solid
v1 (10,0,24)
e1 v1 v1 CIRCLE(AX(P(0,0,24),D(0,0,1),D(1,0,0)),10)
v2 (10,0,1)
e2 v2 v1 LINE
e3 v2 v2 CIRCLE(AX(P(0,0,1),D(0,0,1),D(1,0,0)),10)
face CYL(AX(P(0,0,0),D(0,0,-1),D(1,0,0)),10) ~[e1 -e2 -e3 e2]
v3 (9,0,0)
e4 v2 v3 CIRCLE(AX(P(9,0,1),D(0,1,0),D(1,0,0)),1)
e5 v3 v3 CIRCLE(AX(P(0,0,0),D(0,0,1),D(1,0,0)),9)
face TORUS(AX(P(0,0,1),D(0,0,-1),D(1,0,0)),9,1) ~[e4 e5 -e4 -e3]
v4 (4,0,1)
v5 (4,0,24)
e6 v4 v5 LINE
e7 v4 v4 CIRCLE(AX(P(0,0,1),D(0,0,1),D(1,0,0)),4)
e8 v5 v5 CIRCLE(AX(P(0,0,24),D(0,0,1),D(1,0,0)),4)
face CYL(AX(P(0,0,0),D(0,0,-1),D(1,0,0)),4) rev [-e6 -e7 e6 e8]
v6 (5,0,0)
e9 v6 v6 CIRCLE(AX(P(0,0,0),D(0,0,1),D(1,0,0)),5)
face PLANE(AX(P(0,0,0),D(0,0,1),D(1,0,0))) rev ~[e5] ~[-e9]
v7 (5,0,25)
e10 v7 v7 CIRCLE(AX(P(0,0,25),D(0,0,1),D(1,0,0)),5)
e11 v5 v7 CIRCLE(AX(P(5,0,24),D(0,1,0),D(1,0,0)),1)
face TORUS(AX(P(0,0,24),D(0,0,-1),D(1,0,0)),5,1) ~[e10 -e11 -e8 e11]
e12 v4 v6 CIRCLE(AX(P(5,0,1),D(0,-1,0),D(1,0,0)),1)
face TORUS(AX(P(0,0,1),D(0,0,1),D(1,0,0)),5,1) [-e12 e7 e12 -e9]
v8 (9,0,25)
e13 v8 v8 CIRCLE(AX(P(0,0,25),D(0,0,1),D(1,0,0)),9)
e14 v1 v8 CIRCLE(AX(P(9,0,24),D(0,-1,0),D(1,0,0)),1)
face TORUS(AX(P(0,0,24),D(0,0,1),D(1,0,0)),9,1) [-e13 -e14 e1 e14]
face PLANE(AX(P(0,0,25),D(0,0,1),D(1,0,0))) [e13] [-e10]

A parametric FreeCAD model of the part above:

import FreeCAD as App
import Part
import Sketcher
Q = App.Units.Quantity

doc = App.newDocument("Part")
body = doc.addObject("PartDesign::Body", "Body")

# Sketch on XY plane
sketch1 = body.newObject("Sketcher::SketchObject", "Sketch")
sketch1.AttachmentSupport = (doc.getObject("XY_Plane"), [""])
sketch1.MapMode = "FlatFace"
sketch1.addGeometry([
    Part.Circle(App.Vector(0, 0, 0), App.Vector(0, 0, 1), 10),
    Part.Circle(App.Vector(0, 0, 0), App.Vector(0, 0, 1), 4),
], False)
sketch1.addConstraint([
    Sketcher.Constraint("Coincident", 0, 3, -1, 1),
    Sketcher.Constraint("Coincident", 1, 3, -1, 1),
    Sketcher.Constraint("Diameter", 0, Q("20 mm")),
    Sketcher.Constraint("Diameter", 1, Q("8 mm")),
])
pad1 = body.newObject("PartDesign::Pad", "Pad")
pad1.Profile = sketch1
pad1.Length = 25
doc.recompute()

fillet = body.newObject("PartDesign::Fillet", "Fillet")
fillet.Base = (pad1, ["Edge1"])
fillet.UseAllEdges = True
fillet.Radius = 1

doc.recompute()
